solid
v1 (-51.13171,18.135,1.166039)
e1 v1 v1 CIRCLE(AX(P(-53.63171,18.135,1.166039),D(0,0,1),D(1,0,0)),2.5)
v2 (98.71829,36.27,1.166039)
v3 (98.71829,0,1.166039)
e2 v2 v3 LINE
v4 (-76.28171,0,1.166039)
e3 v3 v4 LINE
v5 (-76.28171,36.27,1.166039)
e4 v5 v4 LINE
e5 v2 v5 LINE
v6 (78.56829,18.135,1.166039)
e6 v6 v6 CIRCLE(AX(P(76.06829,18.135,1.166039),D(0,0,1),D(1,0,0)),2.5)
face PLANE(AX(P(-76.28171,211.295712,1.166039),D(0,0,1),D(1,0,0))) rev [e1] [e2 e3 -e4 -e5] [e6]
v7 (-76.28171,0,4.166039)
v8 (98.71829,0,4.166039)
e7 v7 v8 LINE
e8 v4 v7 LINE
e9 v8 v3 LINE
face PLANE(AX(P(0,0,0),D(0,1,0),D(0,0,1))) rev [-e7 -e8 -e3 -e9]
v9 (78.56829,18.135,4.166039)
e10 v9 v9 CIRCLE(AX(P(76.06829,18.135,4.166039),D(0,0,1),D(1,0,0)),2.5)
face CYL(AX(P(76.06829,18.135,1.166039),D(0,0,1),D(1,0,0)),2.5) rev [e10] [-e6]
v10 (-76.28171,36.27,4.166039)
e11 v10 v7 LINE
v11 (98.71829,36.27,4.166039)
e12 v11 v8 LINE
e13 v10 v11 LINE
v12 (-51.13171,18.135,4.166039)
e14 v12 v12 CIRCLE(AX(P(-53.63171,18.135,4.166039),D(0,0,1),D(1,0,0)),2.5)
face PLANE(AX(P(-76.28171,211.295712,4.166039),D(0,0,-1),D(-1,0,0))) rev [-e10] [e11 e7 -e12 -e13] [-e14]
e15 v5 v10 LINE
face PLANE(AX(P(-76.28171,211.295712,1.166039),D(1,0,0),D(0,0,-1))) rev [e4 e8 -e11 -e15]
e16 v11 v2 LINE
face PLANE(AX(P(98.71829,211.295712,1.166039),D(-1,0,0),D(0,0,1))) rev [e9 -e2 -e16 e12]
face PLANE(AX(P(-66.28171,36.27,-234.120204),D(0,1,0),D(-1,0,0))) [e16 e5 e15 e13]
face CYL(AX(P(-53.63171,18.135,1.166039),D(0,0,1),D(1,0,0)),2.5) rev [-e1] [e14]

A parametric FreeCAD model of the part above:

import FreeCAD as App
import Part
import Sketcher
from FreeCAD import Vector
Q = App.Units.Quantity

doc = App.newDocument("Part")
body = doc.addObject("PartDesign::Body", "Body")

sketch1 = body.newObject("Sketcher::SketchObject", "Sketch")
sketch1.AttachmentSupport = (doc.getObject("XZ_Plane"), [""])
sketch1.MapMode = "FlatFace"
sketch1.addGeometry(Part.LineSegment(Vector(-76.28171, 1.166039, 0), Vector(-76.28171, 4.166039, 0)), False)
sketch1.addGeometry(Part.LineSegment(Vector(-76.28171, 4.166039, 0), Vector(98.71829, 4.166039, 0)), False)
sketch1.addGeometry(Part.LineSegment(Vector(98.71829, 4.166039, 0), Vector(98.71829, 1.166039, 0)), False)
sketch1.addGeometry(Part.LineSegment(Vector(98.71829, 1.166039, 0), Vector(-76.28171, 1.166039, 0)), False)
sketch1.addConstraint(Sketcher.Constraint("Coincident", 0, 2, 1, 1))
sketch1.addConstraint(Sketcher.Constraint("Coincident", 1, 2, 2, 1))
sketch1.addConstraint(Sketcher.Constraint("Coincident", 2, 2, 3, 1))
sketch1.addConstraint(Sketcher.Constraint("Coincident", 3, 2, 0, 1))
sketch1.addConstraint(Sketcher.Constraint("Vertical", 0))
sketch1.addConstraint(Sketcher.Constraint("Horizontal", 1))
sketch1.addConstraint(Sketcher.Constraint("Vertical", 2))
sketch1.addConstraint(Sketcher.Constraint("Horizontal", 3))
sketch1.addConstraint(Sketcher.Constraint("DistanceX", 1, 1, 1, 2, Q("175 mm")))
sketch1.addConstraint(Sketcher.Constraint("DistanceY", 0, 1, 0, 2, Q("3 mm")))
sketch1.addConstraint(Sketcher.Constraint("DistanceX", 0, 2, -1, 1, Q("76.28171 mm")))
sketch1.addConstraint(Sketcher.Constraint("DistanceY", -1, 1, 0, 2, Q("4.166039 mm")))
pad1 = body.newObject("PartDesign::Pad", "Pad")
pad1.Profile = sketch1
pad1.Length = 36.27
pad1.Reversed = True

sketch2 = body.newObject("Sketcher::SketchObject", "Sketch001")
sketch2.AttachmentSupport = (doc.getObject("XY_Plane"), [""])
sketch2.MapMode = "FlatFace"
sketch2.AttachmentOffset = App.Placement(Vector(0, 0, 4.166039), App.Rotation())
sketch2.addGeometry(Part.Circle(Vector(-53.63171, 18.135, 0), Vector(0, 0, 1), 2.5), False)
sketch2.addGeometry(Part.Circle(Vector(76.06829, 18.135, 0), Vector(0, 0, 1), 2.5), False)
sketch2.addConstraint(Sketcher.Constraint("Equal", 0, 1))
sketch2.addConstraint(Sketcher.Constraint("Horizontal", 0, 3, 1, 3))
sketch2.addConstraint(Sketcher.Constraint("Diameter", 0, Q("5 mm")))
sketch2.addConstraint(Sketcher.Constraint("DistanceX", 0, 3, 1, 3, Q("129.7 mm")))
sketch2.addConstraint(Sketcher.Constraint("DistanceY", -1, 1, 0, 3, Q("18.135 mm")))
sketch2.addConstraint(Sketcher.Constraint("DistanceX", 0, 3, -1, 1, Q("53.63171 mm")))
pocket1 = body.newObject("PartDesign::Pocket", "Pocket")
pocket1.Profile = sketch2
pocket1.Type = "ThroughAll"

doc.recompute()
